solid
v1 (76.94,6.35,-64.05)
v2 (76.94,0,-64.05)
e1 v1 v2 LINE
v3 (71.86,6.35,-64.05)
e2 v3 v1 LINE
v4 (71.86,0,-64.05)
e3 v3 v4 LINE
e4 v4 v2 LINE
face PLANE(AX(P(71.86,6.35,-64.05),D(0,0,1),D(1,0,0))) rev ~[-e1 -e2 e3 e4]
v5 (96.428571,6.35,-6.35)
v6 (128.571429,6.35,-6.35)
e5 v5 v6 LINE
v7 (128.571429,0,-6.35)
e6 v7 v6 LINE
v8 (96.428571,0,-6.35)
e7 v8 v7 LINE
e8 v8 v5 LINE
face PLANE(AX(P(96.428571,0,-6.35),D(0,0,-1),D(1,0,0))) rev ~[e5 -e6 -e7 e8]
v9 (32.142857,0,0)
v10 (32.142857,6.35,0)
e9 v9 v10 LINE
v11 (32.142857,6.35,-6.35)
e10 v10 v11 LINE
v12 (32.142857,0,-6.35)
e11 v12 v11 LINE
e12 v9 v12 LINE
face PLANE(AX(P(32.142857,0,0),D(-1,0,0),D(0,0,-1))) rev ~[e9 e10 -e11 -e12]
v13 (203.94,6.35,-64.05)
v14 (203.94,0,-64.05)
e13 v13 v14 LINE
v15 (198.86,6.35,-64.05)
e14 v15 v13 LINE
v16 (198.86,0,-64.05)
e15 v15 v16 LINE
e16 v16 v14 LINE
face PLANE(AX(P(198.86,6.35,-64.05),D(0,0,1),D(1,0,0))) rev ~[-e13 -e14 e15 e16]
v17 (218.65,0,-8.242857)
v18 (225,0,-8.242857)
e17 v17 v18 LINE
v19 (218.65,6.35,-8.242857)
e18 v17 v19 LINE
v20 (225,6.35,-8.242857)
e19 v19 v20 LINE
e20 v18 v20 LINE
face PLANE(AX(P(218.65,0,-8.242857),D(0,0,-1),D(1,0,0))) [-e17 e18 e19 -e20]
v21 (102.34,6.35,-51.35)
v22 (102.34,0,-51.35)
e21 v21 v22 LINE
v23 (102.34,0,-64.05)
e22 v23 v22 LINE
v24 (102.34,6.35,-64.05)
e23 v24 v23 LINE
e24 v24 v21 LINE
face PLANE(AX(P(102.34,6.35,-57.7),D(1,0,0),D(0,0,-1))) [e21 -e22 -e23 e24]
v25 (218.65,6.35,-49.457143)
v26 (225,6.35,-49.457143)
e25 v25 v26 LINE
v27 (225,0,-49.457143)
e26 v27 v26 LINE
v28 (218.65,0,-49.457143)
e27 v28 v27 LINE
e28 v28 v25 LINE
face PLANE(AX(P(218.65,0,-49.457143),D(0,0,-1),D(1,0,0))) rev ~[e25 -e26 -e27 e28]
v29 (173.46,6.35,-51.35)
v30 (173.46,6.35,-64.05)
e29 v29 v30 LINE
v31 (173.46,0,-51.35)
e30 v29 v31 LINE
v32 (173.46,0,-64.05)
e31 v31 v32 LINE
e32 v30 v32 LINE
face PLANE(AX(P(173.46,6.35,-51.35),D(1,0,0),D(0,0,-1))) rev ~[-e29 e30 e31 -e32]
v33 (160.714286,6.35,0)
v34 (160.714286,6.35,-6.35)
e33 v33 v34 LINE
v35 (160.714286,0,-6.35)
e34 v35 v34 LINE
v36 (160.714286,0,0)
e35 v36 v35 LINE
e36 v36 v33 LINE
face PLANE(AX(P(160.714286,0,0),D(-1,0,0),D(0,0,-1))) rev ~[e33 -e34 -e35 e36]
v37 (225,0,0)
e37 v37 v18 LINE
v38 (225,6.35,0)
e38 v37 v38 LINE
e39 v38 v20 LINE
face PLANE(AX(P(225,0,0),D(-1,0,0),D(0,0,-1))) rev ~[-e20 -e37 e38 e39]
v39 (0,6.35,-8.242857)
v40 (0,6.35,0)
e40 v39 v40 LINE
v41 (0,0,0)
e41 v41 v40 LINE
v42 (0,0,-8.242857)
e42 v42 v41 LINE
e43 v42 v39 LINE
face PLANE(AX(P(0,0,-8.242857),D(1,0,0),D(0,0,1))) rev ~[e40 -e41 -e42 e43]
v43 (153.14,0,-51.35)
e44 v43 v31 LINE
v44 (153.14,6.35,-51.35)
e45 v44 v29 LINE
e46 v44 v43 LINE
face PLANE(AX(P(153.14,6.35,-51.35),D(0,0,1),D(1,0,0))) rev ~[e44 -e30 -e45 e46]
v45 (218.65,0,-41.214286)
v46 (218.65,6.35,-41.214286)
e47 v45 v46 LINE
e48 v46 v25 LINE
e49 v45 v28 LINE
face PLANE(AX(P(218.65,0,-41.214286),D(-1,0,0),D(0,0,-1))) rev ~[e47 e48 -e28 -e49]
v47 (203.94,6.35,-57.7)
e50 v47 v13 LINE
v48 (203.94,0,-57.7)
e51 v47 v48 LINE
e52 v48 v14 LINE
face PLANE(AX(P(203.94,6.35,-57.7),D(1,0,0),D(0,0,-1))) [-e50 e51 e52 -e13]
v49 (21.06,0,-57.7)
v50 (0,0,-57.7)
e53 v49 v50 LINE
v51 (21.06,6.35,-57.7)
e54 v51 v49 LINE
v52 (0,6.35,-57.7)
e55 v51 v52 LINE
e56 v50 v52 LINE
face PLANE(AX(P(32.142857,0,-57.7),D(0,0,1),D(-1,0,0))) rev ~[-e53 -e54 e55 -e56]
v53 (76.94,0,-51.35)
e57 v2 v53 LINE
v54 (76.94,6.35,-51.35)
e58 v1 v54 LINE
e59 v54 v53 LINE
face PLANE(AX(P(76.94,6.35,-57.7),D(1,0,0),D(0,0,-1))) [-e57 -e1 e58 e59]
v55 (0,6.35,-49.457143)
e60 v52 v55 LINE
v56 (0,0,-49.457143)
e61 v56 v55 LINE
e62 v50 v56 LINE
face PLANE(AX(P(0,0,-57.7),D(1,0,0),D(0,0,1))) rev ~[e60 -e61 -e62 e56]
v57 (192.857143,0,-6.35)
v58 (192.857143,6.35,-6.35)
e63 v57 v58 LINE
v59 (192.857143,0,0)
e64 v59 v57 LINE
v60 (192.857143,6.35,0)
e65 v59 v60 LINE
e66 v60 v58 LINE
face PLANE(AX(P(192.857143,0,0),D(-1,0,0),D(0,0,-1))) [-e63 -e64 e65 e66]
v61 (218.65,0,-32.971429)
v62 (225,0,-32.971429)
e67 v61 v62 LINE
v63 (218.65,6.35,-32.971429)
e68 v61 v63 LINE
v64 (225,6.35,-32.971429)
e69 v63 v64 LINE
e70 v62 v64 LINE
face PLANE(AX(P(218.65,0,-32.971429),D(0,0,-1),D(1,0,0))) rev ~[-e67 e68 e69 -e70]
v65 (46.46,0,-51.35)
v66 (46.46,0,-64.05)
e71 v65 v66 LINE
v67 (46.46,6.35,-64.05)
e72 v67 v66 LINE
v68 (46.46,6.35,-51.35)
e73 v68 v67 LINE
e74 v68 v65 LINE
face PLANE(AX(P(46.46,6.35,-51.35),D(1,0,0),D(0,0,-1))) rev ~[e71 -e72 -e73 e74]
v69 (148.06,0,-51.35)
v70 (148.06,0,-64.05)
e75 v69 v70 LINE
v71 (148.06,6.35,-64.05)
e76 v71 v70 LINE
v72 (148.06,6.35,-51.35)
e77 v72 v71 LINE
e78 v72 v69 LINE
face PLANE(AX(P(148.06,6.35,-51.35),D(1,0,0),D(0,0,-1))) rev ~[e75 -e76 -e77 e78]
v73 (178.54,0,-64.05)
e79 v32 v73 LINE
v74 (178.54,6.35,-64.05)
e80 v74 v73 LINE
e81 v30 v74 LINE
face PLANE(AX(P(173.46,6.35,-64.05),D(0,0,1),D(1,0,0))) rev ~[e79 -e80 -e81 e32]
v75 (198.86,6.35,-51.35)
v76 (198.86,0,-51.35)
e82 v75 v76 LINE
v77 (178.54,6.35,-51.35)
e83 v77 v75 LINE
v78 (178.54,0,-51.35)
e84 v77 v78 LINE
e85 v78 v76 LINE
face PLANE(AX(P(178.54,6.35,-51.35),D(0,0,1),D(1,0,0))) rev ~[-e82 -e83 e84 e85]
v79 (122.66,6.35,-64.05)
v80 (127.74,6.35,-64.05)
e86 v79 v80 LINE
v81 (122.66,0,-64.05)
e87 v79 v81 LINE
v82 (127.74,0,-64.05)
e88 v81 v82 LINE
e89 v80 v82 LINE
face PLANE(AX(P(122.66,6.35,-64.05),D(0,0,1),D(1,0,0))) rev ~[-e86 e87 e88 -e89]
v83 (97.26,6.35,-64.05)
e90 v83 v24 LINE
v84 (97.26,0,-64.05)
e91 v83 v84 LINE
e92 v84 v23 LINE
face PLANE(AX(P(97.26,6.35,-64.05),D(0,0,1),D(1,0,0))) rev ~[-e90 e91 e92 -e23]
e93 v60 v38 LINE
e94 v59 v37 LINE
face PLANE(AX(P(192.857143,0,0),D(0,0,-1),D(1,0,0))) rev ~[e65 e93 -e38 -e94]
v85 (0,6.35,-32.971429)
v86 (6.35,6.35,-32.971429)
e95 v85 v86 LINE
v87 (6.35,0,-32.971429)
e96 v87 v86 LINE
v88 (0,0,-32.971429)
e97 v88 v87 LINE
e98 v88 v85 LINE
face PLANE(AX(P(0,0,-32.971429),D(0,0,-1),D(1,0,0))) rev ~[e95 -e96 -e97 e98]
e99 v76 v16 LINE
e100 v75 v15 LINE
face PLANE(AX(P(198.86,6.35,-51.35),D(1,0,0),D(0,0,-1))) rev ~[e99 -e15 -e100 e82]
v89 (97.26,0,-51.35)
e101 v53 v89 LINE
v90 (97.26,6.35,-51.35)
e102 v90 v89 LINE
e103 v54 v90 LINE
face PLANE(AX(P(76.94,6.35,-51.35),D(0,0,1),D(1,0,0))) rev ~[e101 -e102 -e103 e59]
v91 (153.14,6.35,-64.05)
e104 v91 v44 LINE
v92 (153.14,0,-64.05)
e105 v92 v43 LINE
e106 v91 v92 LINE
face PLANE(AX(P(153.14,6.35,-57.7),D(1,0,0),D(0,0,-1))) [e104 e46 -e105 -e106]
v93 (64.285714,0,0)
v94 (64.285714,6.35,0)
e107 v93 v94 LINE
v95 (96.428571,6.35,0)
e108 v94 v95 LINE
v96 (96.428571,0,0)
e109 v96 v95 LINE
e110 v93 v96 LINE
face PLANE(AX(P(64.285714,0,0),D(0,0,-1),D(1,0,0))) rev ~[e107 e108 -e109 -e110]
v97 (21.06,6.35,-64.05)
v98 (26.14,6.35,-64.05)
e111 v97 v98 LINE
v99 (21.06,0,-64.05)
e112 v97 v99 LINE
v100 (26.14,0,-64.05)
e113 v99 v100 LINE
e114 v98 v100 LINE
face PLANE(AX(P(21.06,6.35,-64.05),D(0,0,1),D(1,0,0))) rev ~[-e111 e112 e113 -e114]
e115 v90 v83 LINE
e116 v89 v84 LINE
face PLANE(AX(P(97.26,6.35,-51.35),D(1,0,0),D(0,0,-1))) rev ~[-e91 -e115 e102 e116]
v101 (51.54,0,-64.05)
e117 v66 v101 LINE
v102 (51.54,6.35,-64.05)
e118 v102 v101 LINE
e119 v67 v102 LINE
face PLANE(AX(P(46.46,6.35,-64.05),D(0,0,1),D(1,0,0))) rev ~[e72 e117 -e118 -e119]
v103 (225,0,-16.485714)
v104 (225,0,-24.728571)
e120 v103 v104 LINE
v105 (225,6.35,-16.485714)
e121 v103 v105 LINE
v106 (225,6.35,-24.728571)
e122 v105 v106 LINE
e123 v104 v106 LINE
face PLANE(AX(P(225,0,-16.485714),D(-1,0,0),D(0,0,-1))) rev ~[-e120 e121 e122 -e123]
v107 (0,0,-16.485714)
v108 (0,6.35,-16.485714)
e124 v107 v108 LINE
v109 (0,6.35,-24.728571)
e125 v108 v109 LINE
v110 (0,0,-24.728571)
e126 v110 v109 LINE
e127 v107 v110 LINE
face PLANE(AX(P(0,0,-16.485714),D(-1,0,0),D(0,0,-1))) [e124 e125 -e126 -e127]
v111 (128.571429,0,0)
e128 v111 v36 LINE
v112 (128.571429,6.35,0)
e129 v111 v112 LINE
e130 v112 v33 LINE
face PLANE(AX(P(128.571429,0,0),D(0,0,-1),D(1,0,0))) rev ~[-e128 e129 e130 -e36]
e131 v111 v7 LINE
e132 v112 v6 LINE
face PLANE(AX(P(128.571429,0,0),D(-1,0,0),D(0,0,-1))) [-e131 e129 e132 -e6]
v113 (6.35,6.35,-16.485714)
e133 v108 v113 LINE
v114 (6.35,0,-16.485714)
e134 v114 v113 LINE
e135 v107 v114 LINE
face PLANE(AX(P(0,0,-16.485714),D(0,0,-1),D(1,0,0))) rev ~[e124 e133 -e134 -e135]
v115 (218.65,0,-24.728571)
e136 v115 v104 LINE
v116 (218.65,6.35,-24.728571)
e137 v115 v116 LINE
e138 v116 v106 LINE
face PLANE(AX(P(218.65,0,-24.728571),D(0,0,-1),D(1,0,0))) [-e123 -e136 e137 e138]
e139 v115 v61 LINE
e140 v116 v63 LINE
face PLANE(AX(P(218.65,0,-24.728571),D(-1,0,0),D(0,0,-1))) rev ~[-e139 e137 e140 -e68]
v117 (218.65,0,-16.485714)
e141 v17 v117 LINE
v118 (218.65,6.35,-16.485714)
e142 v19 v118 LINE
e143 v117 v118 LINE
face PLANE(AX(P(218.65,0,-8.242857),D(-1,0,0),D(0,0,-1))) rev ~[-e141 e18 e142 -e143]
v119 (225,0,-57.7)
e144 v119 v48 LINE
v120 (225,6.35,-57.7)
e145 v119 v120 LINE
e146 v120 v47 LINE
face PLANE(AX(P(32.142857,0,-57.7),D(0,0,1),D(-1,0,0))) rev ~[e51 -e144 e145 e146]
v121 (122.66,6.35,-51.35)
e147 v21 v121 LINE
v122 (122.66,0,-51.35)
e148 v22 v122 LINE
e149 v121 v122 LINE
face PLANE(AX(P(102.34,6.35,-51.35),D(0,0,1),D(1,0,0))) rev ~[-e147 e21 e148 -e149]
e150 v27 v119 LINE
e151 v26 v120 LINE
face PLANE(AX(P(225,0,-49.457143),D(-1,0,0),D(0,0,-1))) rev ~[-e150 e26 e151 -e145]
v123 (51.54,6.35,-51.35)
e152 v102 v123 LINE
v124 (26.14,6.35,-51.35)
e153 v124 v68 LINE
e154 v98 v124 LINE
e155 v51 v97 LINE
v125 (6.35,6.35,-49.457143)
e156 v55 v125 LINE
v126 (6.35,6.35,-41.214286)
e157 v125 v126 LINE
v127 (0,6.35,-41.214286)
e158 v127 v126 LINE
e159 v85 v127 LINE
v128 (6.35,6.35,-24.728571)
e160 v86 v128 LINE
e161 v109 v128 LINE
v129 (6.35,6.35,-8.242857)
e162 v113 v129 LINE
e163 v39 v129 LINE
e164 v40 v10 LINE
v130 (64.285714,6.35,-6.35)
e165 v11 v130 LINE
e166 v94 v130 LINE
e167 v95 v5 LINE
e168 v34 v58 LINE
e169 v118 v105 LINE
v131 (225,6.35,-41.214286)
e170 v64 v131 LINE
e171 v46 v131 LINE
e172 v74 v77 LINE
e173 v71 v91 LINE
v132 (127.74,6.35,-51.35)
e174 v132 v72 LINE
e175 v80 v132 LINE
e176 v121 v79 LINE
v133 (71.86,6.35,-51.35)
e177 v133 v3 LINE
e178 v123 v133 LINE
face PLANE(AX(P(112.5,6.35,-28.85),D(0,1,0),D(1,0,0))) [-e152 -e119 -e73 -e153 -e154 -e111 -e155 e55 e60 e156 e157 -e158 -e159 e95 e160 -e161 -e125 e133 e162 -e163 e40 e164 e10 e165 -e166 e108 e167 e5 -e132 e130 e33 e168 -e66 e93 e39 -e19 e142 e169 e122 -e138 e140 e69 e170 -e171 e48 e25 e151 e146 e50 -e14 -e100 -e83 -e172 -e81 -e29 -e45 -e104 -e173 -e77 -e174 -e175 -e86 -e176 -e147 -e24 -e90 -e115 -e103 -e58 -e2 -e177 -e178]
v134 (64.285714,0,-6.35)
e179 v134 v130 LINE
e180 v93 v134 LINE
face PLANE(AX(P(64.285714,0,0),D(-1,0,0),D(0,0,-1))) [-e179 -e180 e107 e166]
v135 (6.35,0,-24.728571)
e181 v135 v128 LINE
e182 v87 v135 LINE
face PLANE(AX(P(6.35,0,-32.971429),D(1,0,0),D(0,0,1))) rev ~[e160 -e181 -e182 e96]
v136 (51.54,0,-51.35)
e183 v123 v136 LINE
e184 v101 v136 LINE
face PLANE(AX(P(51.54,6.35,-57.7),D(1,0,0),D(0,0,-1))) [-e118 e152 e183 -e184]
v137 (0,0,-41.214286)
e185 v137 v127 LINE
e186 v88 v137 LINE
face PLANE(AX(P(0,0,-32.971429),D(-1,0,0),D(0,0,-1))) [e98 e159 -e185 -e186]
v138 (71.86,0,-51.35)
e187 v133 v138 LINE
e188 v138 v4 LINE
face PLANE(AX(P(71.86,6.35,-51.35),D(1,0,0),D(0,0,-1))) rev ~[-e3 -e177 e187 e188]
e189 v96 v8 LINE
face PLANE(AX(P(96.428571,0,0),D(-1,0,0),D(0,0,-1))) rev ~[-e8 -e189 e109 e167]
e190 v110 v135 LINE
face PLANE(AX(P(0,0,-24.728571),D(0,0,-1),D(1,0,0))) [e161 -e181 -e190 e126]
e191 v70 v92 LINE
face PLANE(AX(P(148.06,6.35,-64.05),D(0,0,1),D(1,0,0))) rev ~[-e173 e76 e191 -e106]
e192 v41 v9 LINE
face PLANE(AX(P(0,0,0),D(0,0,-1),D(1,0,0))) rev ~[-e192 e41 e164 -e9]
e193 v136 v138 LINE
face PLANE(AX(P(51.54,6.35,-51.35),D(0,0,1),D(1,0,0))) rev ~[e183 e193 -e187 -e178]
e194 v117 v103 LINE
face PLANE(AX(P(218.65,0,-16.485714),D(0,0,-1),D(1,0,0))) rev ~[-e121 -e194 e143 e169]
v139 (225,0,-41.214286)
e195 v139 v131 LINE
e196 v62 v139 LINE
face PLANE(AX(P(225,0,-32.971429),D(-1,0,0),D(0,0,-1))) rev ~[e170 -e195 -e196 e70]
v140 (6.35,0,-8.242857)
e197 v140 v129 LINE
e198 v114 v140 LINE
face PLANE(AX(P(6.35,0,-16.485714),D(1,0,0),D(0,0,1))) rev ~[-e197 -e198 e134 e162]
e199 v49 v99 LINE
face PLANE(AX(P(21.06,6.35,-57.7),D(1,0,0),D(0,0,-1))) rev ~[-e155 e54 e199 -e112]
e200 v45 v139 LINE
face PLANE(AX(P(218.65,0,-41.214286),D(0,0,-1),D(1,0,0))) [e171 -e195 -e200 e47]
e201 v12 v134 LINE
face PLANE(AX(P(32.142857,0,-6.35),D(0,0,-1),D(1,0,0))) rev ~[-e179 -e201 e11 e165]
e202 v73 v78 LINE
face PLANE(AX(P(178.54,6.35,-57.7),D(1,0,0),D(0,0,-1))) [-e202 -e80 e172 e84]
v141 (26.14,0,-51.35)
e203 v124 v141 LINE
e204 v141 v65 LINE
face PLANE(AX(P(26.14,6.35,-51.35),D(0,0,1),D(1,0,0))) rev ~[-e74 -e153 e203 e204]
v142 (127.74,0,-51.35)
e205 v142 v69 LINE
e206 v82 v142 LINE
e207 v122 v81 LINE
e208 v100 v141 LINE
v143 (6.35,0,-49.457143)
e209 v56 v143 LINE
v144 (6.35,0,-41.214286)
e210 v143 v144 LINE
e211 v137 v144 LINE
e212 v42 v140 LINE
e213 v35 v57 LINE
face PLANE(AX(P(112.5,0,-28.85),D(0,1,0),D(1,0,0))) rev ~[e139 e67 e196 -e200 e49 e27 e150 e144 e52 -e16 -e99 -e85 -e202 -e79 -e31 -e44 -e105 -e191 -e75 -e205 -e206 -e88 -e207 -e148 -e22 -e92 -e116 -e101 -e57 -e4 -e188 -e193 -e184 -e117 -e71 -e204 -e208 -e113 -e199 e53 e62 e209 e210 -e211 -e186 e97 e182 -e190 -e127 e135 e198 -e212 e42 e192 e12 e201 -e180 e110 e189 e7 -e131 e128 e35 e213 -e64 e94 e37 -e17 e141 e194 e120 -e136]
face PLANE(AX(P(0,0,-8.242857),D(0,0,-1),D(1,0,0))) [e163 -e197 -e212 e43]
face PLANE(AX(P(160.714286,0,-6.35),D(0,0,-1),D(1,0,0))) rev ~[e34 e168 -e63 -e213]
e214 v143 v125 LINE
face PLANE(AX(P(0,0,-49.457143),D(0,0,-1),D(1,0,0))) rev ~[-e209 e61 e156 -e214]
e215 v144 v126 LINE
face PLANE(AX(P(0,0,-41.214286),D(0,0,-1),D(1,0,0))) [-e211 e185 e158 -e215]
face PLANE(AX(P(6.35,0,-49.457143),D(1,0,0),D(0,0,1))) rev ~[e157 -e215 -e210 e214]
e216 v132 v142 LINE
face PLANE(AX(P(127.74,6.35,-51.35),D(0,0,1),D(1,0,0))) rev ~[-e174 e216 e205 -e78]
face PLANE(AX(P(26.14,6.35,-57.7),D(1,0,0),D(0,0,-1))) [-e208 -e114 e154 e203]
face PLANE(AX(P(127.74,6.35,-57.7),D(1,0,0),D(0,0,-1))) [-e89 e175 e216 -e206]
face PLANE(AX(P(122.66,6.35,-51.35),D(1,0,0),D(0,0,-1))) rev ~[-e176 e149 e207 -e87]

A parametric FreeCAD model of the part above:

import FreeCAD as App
import Part
import Sketcher
from FreeCAD import Vector
Q = App.Units.Quantity

doc = App.newDocument("Part")
body = doc.addObject("PartDesign::Body", "Body")

sketch1 = doc.addObject("Sketcher::SketchObject", "Sketch")
body.addObject(sketch1)
sketch1.AttachmentSupport = (doc.XZ_Plane, [""])
sketch1.MapMode = "FlatFace"
sketch1.addGeometry([
    Part.LineSegment(Vector(32, -6, 0), Vector(64, -6, 0)),
    Part.LineSegment(Vector(64, -6, 0), Vector(64, 0, 0)),
    Part.LineSegment(Vector(64, 0, 0), Vector(96, 0, 0)),
    Part.LineSegment(Vector(96, 0, 0), Vector(96, -6, 0)),
    Part.LineSegment(Vector(96, -6, 0), Vector(129, -6, 0)),
    Part.LineSegment(Vector(129, -6, 0), Vector(129, 0, 0)),
    Part.LineSegment(Vector(129, 0, 0), Vector(161, 0, 0)),
    Part.LineSegment(Vector(161, 0, 0), Vector(161, -6, 0)),
    Part.LineSegment(Vector(161, -6, 0), Vector(193, -6, 0)),
    Part.LineSegment(Vector(193, -6, 0), Vector(193, 0, 0)),
    Part.LineSegment(Vector(193, 0, 0), Vector(225, 0, 0)),
    Part.LineSegment(Vector(225, 0, 0), Vector(225, -8, 0)),
    Part.LineSegment(Vector(225, -8, 0), Vector(219, -8, 0)),
    Part.LineSegment(Vector(219, -8, 0), Vector(219, -16, 0)),
    Part.LineSegment(Vector(219, -16, 0), Vector(225, -16, 0)),
    Part.LineSegment(Vector(225, -16, 0), Vector(225, -25, 0)),
    Part.LineSegment(Vector(225, -25, 0), Vector(219, -25, 0)),
    Part.LineSegment(Vector(219, -25, 0), Vector(219, -33, 0)),
    Part.LineSegment(Vector(219, -33, 0), Vector(225, -33, 0)),
    Part.LineSegment(Vector(225, -33, 0), Vector(225, -41, 0)),
    Part.LineSegment(Vector(225, -41, 0), Vector(219, -41, 0)),
    Part.LineSegment(Vector(219, -41, 0), Vector(219, -49, 0)),
    Part.LineSegment(Vector(219, -49, 0), Vector(225, -49, 0)),
    Part.LineSegment(Vector(225, -49, 0), Vector(225, -58, 0)),
    Part.LineSegment(Vector(225, -58, 0), Vector(193, -58, 0)),
    Part.LineSegment(Vector(193, -58, 0), Vector(193, -51, 0)),
    Part.LineSegment(Vector(193, -51, 0), Vector(161, -51, 0)),
    Part.LineSegment(Vector(161, -51, 0), Vector(161, -58, 0)),
    Part.LineSegment(Vector(161, -58, 0), Vector(129, -58, 0)),
    Part.LineSegment(Vector(129, -58, 0), Vector(129, -51, 0)),
    Part.LineSegment(Vector(129, -51, 0), Vector(96, -51, 0)),
    Part.LineSegment(Vector(96, -51, 0), Vector(96, -58, 0)),
    Part.LineSegment(Vector(96, -58, 0), Vector(64, -58, 0)),
    Part.LineSegment(Vector(64, -58, 0), Vector(64, -51, 0)),
    Part.LineSegment(Vector(64, -51, 0), Vector(32, -51, 0)),
    Part.LineSegment(Vector(32, -51, 0), Vector(32, -58, 0)),
    Part.LineSegment(Vector(32, -58, 0), Vector(0, -58, 0)),
    Part.LineSegment(Vector(0, -58, 0), Vector(0, -49, 0)),
    Part.LineSegment(Vector(0, -49, 0), Vector(6, -49, 0)),
    Part.LineSegment(Vector(6, -49, 0), Vector(6, -41, 0)),
    Part.LineSegment(Vector(6, -41, 0), Vector(0, -41, 0)),
    Part.LineSegment(Vector(0, -41, 0), Vector(0, -33, 0)),
    Part.LineSegment(Vector(0, -33, 0), Vector(6, -33, 0)),
    Part.LineSegment(Vector(6, -33, 0), Vector(6, -25, 0)),
    Part.LineSegment(Vector(6, -25, 0), Vector(0, -25, 0)),
    Part.LineSegment(Vector(0, -25, 0), Vector(0, -16, 0)),
    Part.LineSegment(Vector(0, -16, 0), Vector(6, -16, 0)),
    Part.LineSegment(Vector(6, -16, 0), Vector(6, -8, 0)),
    Part.LineSegment(Vector(6, -8, 0), Vector(0, -8, 0)),
    Part.LineSegment(Vector(0, -8, 0), Vector(0, 0, 0)),
    Part.LineSegment(Vector(0, 0, 0), Vector(32, 0, 0)),
    Part.LineSegment(Vector(32, 0, 0), Vector(32, -6, 0)),
], False)
sketch1.addConstraint([
    Sketcher.Constraint("Coincident", 0, 2, 1, 1),
    Sketcher.Constraint("Coincident", 1, 2, 2, 1),
    Sketcher.Constraint("Coincident", 2, 2, 3, 1),
    Sketcher.Constraint("Coincident", 3, 2, 4, 1),
    Sketcher.Constraint("Coincident", 4, 2, 5, 1),
    Sketcher.Constraint("Coincident", 5, 2, 6, 1),
    Sketcher.Constraint("Coincident", 6, 2, 7, 1),
    Sketcher.Constraint("Coincident", 7, 2, 8, 1),
    Sketcher.Constraint("Coincident", 8, 2, 9, 1),
    Sketcher.Constraint("Coincident", 9, 2, 10, 1),
    Sketcher.Constraint("Coincident", 10, 2, 11, 1),
    Sketcher.Constraint("Coincident", 11, 2, 12, 1),
    Sketcher.Constraint("Coincident", 12, 2, 13, 1),
    Sketcher.Constraint("Coincident", 13, 2, 14, 1),
    Sketcher.Constraint("Coincident", 14, 2, 15, 1),
    Sketcher.Constraint("Coincident", 15, 2, 16, 1),
    Sketcher.Constraint("Coincident", 16, 2, 17, 1),
    Sketcher.Constraint("Coincident", 17, 2, 18, 1),
    Sketcher.Constraint("Coincident", 18, 2, 19, 1),
    Sketcher.Constraint("Coincident", 19, 2, 20, 1),
    Sketcher.Constraint("Coincident", 20, 2, 21, 1),
    Sketcher.Constraint("Coincident", 21, 2, 22, 1),
    Sketcher.Constraint("Coincident", 22, 2, 23, 1),
    Sketcher.Constraint("Coincident", 23, 2, 24, 1),
    Sketcher.Constraint("Coincident", 24, 2, 25, 1),
    Sketcher.Constraint("Coincident", 25, 2, 26, 1),
    Sketcher.Constraint("Coincident", 26, 2, 27, 1),
    Sketcher.Constraint("Coincident", 27, 2, 28, 1),
    Sketcher.Constraint("Coincident", 28, 2, 29, 1),
    Sketcher.Constraint("Coincident", 29, 2, 30, 1),
    Sketcher.Constraint("Coincident", 30, 2, 31, 1),
    Sketcher.Constraint("Coincident", 31, 2, 32, 1),
    Sketcher.Constraint("Coincident", 32, 2, 33, 1),
    Sketcher.Constraint("Coincident", 33, 2, 34, 1),
    Sketcher.Constraint("Coincident", 34, 2, 35, 1),
    Sketcher.Constraint("Coincident", 35, 2, 36, 1),
    Sketcher.Constraint("Coincident", 36, 2, 37, 1),
    Sketcher.Constraint("Coincident", 37, 2, 38, 1),
    Sketcher.Constraint("Coincident", 38, 2, 39, 1),
    Sketcher.Constraint("Coincident", 39, 2, 40, 1),
    Sketcher.Constraint("Coincident", 40, 2, 41, 1),
    Sketcher.Constraint("Coincident", 41, 2, 42, 1),
    Sketcher.Constraint("Coincident", 42, 2, 43, 1),
    Sketcher.Constraint("Coincident", 43, 2, 44, 1),
    Sketcher.Constraint("Coincident", 44, 2, 45, 1),
    Sketcher.Constraint("Coincident", 45, 2, 46, 1),
    Sketcher.Constraint("Coincident", 46, 2, 47, 1),
    Sketcher.Constraint("Coincident", 47, 2, 48, 1),
    Sketcher.Constraint("Coincident", 48, 2, 49, 1),
    Sketcher.Constraint("Coincident", 49, 2, 50, 1),
    Sketcher.Constraint("Coincident", 50, 2, 51, 1),
    Sketcher.Constraint("Coincident", 51, 2, 0, 1),
    Sketcher.Constraint("Horizontal", 0),
    Sketcher.Constraint("Vertical", 1),
    Sketcher.Constraint("Horizontal", 2),
    Sketcher.Constraint("Vertical", 3),
    Sketcher.Constraint("Horizontal", 4),
    Sketcher.Constraint("Vertical", 5),
    Sketcher.Constraint("Horizontal", 6),
    Sketcher.Constraint("Vertical", 7),
    Sketcher.Constraint("Horizontal", 8),
    Sketcher.Constraint("Vertical", 9),
    Sketcher.Constraint("Horizontal", 10),
    Sketcher.Constraint("Vertical", 11),
    Sketcher.Constraint("Horizontal", 12),
    Sketcher.Constraint("Vertical", 13),
    Sketcher.Constraint("Horizontal", 14),
    Sketcher.Constraint("Vertical", 15),
    Sketcher.Constraint("Horizontal", 16),
    Sketcher.Constraint("Vertical", 17),
    Sketcher.Constraint("Horizontal", 18),
    Sketcher.Constraint("Vertical", 19),
    Sketcher.Constraint("Horizontal", 20),
    Sketcher.Constraint("Vertical", 21),
    Sketcher.Constraint("Horizontal", 22),
    Sketcher.Constraint("Vertical", 23),
    Sketcher.Constraint("Horizontal", 24),
    Sketcher.Constraint("Vertical", 25),
    Sketcher.Constraint("Horizontal", 26),
    Sketcher.Constraint("Vertical", 27),
    Sketcher.Constraint("Horizontal", 28),
    Sketcher.Constraint("Vertical", 29),
    Sketcher.Constraint("Horizontal", 30),
    Sketcher.Constraint("Vertical", 31),
    Sketcher.Constraint("Horizontal", 32),
    Sketcher.Constraint("Vertical", 33),
    Sketcher.Constraint("Horizontal", 34),
    Sketcher.Constraint("Vertical", 35),
    Sketcher.Constraint("Horizontal", 36),
    Sketcher.Constraint("Vertical", 37),
    Sketcher.Constraint("Horizontal", 38),
    Sketcher.Constraint("Vertical", 39),
    Sketcher.Constraint("Horizontal", 40),
    Sketcher.Constraint("Vertical", 41),
    Sketcher.Constraint("Horizontal", 42),
    Sketcher.Constraint("Vertical", 43),
    Sketcher.Constraint("Horizontal", 44),
    Sketcher.Constraint("Vertical", 45),
    Sketcher.Constraint("Horizontal", 46),
    Sketcher.Constraint("Vertical", 47),
    Sketcher.Constraint("Horizontal", 48),
    Sketcher.Constraint("Vertical", 49),
    Sketcher.Constraint("Horizontal", 50),
    Sketcher.Constraint("Vertical", 51),
    Sketcher.Constraint("Coincident", 49, 2, -1, 1),
    Sketcher.Constraint("PointOnObject", 1, 2, -1),
    Sketcher.Constraint("PointOnObject", 5, 2, -1),
    Sketcher.Constraint("PointOnObject", 9, 2, -1),
    Sketcher.Constraint("PointOnObject", 36, 2, -2),
    Sketcher.Constraint("PointOnObject", 40, 2, -2),
    Sketcher.Constraint("PointOnObject", 44, 2, -2),
    Sketcher.Constraint("Horizontal", 0, 2, 3, 2),
    Sketcher.Constraint("Horizontal", 4, 2, 7, 2),
    Sketcher.Constraint("Horizontal", 24, 2, 27, 2),
    Sketcher.Constraint("Horizontal", 26, 2, 29, 2),
    Sketcher.Constraint("Horizontal", 28, 2, 31, 2),
    Sketcher.Constraint("Horizontal", 30, 2, 33, 2),
    Sketcher.Constraint("Horizontal", 32, 2, 35, 2),
    Sketcher.Constraint("Horizontal", 22, 2, 37, 2),
    Sketcher.Constraint("Horizontal", 20, 2, 39, 2),
    Sketcher.Constraint("Horizontal", 18, 2, 41, 2),
    Sketcher.Constraint("Horizontal", 16, 2, 43, 2),
    Sketcher.Constraint("Horizontal", 14, 2, 45, 2),
    Sketcher.Constraint("Horizontal", 12, 2, 47, 2),
    Sketcher.Constraint("Vertical", 11, 2, 14, 2),
    Sketcher.Constraint("Vertical", 13, 2, 16, 2),
    Sketcher.Constraint("Vertical", 15, 2, 18, 2),
    Sketcher.Constraint("Vertical", 17, 2, 20, 2),
    Sketcher.Constraint("Vertical", 19, 2, 22, 2),
    Sketcher.Constraint("Vertical", 9, 2, 24, 2),
    Sketcher.Constraint("Vertical", 7, 2, 26, 2),
    Sketcher.Constraint("Vertical", 5, 2, 28, 2),
    Sketcher.Constraint("Vertical", 3, 2, 30, 2),
    Sketcher.Constraint("Vertical", 1, 2, 32, 2),
    Sketcher.Constraint("Vertical", 39, 2, 42, 2),
    Sketcher.Constraint("Vertical", 43, 2, 46, 2),
    Sketcher.Constraint("Vertical", 35, 2, 50, 2),
    Sketcher.Constraint("Equal", 0, 2),
    Sketcher.Constraint("Equal", 2, 4),
    Sketcher.Constraint("Equal", 4, 6),
    Sketcher.Constraint("Equal", 6, 8),
    Sketcher.Constraint("Equal", 8, 10),
    Sketcher.Constraint("Equal", 34, 36),
    Sketcher.Constraint("Equal", 22, 38),
    Sketcher.Constraint("Equal", 48, 1),
    Sketcher.Constraint("Equal", 11, 13),
    Sketcher.Constraint("Equal", 13, 15),
    Sketcher.Constraint("Equal", 15, 17),
    Sketcher.Constraint("Equal", 17, 19),
    Sketcher.Constraint("Equal", 19, 21),
    Sketcher.Constraint("Equal", 21, 23),
    Sketcher.Constraint("Equal", 9, 25),
    Sketcher.Constraint("DistanceX", 12, 2, 12, 1, Q("0.25 in")),
    Sketcher.Constraint("DistanceX", -1, 1, 10, 2, Q("225 mm")),
    Sketcher.Constraint("DistanceY", 23, 2, -1, 1, Q("57.7 mm")),
])
pad1 = doc.addObject("PartDesign::Pad", "Pad")
body.addObject(pad1)
pad1.Profile = sketch1
pad1.Length = Q("0.25 in")
pad1.Reversed = True

sketch2 = doc.addObject("Sketcher::SketchObject", "Sketch001")
body.addObject(sketch2)
sketch2.AttachmentSupport = (doc.XZ_Plane, [""])
sketch2.MapMode = "FlatFace"
sketch2.AttachmentOffset = App.Placement(Vector(0, 0, -0.25 * 25.4), App.Rotation())
sketch2.addGeometry([
    Part.LineSegment(Vector(0, -58, 0), Vector(0, -49, 0)),
    Part.LineSegment(Vector(0, -49, 0), Vector(225, -49, 0)),
    Part.LineSegment(Vector(225, -49, 0), Vector(225, -58, 0)),
    Part.LineSegment(Vector(225, -58, 0), Vector(0, -58, 0)),
], False)
sketch2.addConstraint([
    Sketcher.Constraint("Coincident", 0, 2, 1, 1),
    Sketcher.Constraint("Coincident", 1, 2, 2, 1),
    Sketcher.Constraint("Coincident", 2, 2, 3, 1),
    Sketcher.Constraint("Coincident", 3, 2, 0, 1),
    Sketcher.Constraint("Vertical", 0),
    Sketcher.Constraint("Horizontal", 1),
    Sketcher.Constraint("Vertical", 2),
    Sketcher.Constraint("Horizontal", 3),
    Sketcher.Constraint("PointOnObject", 0, 2, -2),
    Sketcher.Constraint("DistanceX", 1, 1, 1, 2, Q("225 mm")),
    Sketcher.Constraint("DistanceY", 2, 2, -1, 1, Q("57.7 mm")),
    Sketcher.Constraint("DistanceY", 0, 1, 0, 2, Q("8.242857 mm")),
])
pad2 = doc.addObject("PartDesign::Pad", "Pad001")
body.addObject(pad2)
pad2.Profile = sketch2
pad2.Length = Q("0.25 in")

sketch3 = doc.addObject("Sketcher::SketchObject", "Sketch002")
body.addObject(sketch3)
sketch3.AttachmentSupport = (doc.XZ_Plane, [""])
sketch3.MapMode = "FlatFace"
sketch3.AttachmentOffset = App.Placement(Vector(0, 0, -0.25 * 25.4), App.Rotation())
sketch3.addGeometry([
    Part.LineSegment(Vector(21, -64, 0), Vector(21, -58, 0)),
    Part.LineSegment(Vector(21, -58, 0), Vector(26, -58, 0)),
    Part.LineSegment(Vector(26, -58, 0), Vector(26, -64, 0)),
    Part.LineSegment(Vector(26, -64, 0), Vector(21, -64, 0)),
    Part.LineSegment(Vector(46, -64, 0), Vector(46, -58, 0)),
    Part.LineSegment(Vector(46, -58, 0), Vector(52, -58, 0)),
    Part.LineSegment(Vector(52, -58, 0), Vector(52, -64, 0)),
    Part.LineSegment(Vector(52, -64, 0), Vector(46, -64, 0)),
    Part.LineSegment(Vector(72, -64, 0), Vector(72, -58, 0)),
    Part.LineSegment(Vector(72, -58, 0), Vector(77, -58, 0)),
    Part.LineSegment(Vector(77, -58, 0), Vector(77, -64, 0)),
    Part.LineSegment(Vector(77, -64, 0), Vector(72, -64, 0)),
    Part.LineSegment(Vector(97, -64, 0), Vector(97, -58, 0)),
    Part.LineSegment(Vector(97, -58, 0), Vector(102, -58, 0)),
    Part.LineSegment(Vector(102, -58, 0), Vector(102, -64, 0)),
    Part.LineSegment(Vector(102, -64, 0), Vector(97, -64, 0)),
    Part.LineSegment(Vector(123, -64, 0), Vector(123, -58, 0)),
    Part.LineSegment(Vector(123, -58, 0), Vector(128, -58, 0)),
    Part.LineSegment(Vector(128, -58, 0), Vector(128, -64, 0)),
    Part.LineSegment(Vector(128, -64, 0), Vector(123, -64, 0)),
    Part.LineSegment(Vector(148, -64, 0), Vector(148, -58, 0)),
    Part.LineSegment(Vector(148, -58, 0), Vector(153, -58, 0)),
    Part.LineSegment(Vector(153, -58, 0), Vector(153, -64, 0)),
    Part.LineSegment(Vector(153, -64, 0), Vector(148, -64, 0)),
    Part.LineSegment(Vector(173, -64, 0), Vector(173, -58, 0)),
    Part.LineSegment(Vector(173, -58, 0), Vector(179, -58, 0)),
    Part.LineSegment(Vector(179, -58, 0), Vector(179, -64, 0)),
    Part.LineSegment(Vector(179, -64, 0), Vector(173, -64, 0)),
    Part.LineSegment(Vector(199, -64, 0), Vector(199, -58, 0)),
    Part.LineSegment(Vector(199, -58, 0), Vector(204, -58, 0)),
    Part.LineSegment(Vector(204, -58, 0), Vector(204, -64, 0)),
    Part.LineSegment(Vector(204, -64, 0), Vector(199, -64, 0)),
], False)
sketch3.addConstraint([
    Sketcher.Constraint("Coincident", 0, 2, 1, 1),
    Sketcher.Constraint("Coincident", 1, 2, 2, 1),
    Sketcher.Constraint("Coincident", 2, 2, 3, 1),
    Sketcher.Constraint("Coincident", 3, 2, 0, 1),
    Sketcher.Constraint("Coincident", 4, 2, 5, 1),
    Sketcher.Constraint("Coincident", 5, 2, 6, 1),
    Sketcher.Constraint("Coincident", 6, 2, 7, 1),
    Sketcher.Constraint("Coincident", 7, 2, 4, 1),
    Sketcher.Constraint("Coincident", 8, 2, 9, 1),
    Sketcher.Constraint("Coincident", 9, 2, 10, 1),
    Sketcher.Constraint("Coincident", 10, 2, 11, 1),
    Sketcher.Constraint("Coincident", 11, 2, 8, 1),
    Sketcher.Constraint("Coincident", 12, 2, 13, 1),
    Sketcher.Constraint("Coincident", 13, 2, 14, 1),
    Sketcher.Constraint("Coincident", 14, 2, 15, 1),
    Sketcher.Constraint("Coincident", 15, 2, 12, 1),
    Sketcher.Constraint("Coincident", 16, 2, 17, 1),
    Sketcher.Constraint("Coincident", 17, 2, 18, 1),
    Sketcher.Constraint("Coincident", 18, 2, 19, 1),
    Sketcher.Constraint("Coincident", 19, 2, 16, 1),
    Sketcher.Constraint("Coincident", 20, 2, 21, 1),
    Sketcher.Constraint("Coincident", 21, 2, 22, 1),
    Sketcher.Constraint("Coincident", 22, 2, 23, 1),
    Sketcher.Constraint("Coincident", 23, 2, 20, 1),
    Sketcher.Constraint("Coincident", 24, 2, 25, 1),
    Sketcher.Constraint("Coincident", 25, 2, 26, 1),
    Sketcher.Constraint("Coincident", 26, 2, 27, 1),
    Sketcher.Constraint("Coincident", 27, 2, 24, 1),
    Sketcher.Constraint("Coincident", 28, 2, 29, 1),
    Sketcher.Constraint("Coincident", 29, 2, 30, 1),
    Sketcher.Constraint("Coincident", 30, 2, 31, 1),
    Sketcher.Constraint("Coincident", 31, 2, 28, 1),
    Sketcher.Constraint("Vertical", 0),
    Sketcher.Constraint("Horizontal", 1),
    Sketcher.Constraint("Vertical", 2),
    Sketcher.Constraint("Horizontal", 3),
    Sketcher.Constraint("Vertical", 4),
    Sketcher.Constraint("Horizontal", 5),
    Sketcher.Constraint("Vertical", 6),
    Sketcher.Constraint("Horizontal", 7),
    Sketcher.Constraint("Vertical", 8),
    Sketcher.Constraint("Horizontal", 9),
    Sketcher.Constraint("Vertical", 10),
    Sketcher.Constraint("Horizontal", 11),
    Sketcher.Constraint("Vertical", 12),
    Sketcher.Constraint("Horizontal", 13),
    Sketcher.Constraint("Vertical", 14),
    Sketcher.Constraint("Horizontal", 15),
    Sketcher.Constraint("Vertical", 16),
    Sketcher.Constraint("Horizontal", 17),
    Sketcher.Constraint("Vertical", 18),
    Sketcher.Constraint("Horizontal", 19),
    Sketcher.Constraint("Vertical", 20),
    Sketcher.Constraint("Horizontal", 21),
    Sketcher.Constraint("Vertical", 22),
    Sketcher.Constraint("Horizontal", 23),
    Sketcher.Constraint("Vertical", 24),
    Sketcher.Constraint("Horizontal", 25),
    Sketcher.Constraint("Vertical", 26),
    Sketcher.Constraint("Horizontal", 27),
    Sketcher.Constraint("Vertical", 28),
    Sketcher.Constraint("Horizontal", 29),
    Sketcher.Constraint("Vertical", 30),
    Sketcher.Constraint("Horizontal", 31),
    Sketcher.Constraint("Horizontal", 1, 2, 4, 2),
    Sketcher.Constraint("Horizontal", 3, 2, 6, 2),
    Sketcher.Constraint("Horizontal", 5, 2, 8, 2),
    Sketcher.Constraint("Horizontal", 7, 2, 10, 2),
    Sketcher.Constraint("Horizontal", 9, 2, 12, 2),
    Sketcher.Constraint("Horizontal", 11, 2, 14, 2),
    Sketcher.Constraint("Horizontal", 13, 2, 16, 2),
    Sketcher.Constraint("Horizontal", 15, 2, 18, 2),
    Sketcher.Constraint("Horizontal", 17, 2, 20, 2),
    Sketcher.Constraint("Horizontal", 19, 2, 22, 2),
    Sketcher.Constraint("Horizontal", 21, 2, 24, 2),
    Sketcher.Constraint("Horizontal", 23, 2, 26, 2),
    Sketcher.Constraint("Horizontal", 25, 2, 28, 2),
    Sketcher.Constraint("Horizontal", 27, 2, 30, 2),
    Sketcher.Constraint("Equal", 3, 5),
    Sketcher.Constraint("Equal", 7, 9),
    Sketcher.Constraint("Equal", 11, 13),
    Sketcher.Constraint("Equal", 15, 17),
    Sketcher.Constraint("Equal", 19, 21),
    Sketcher.Constraint("Equal", 23, 25),
    Sketcher.Constraint("Equal", 27, 29),
    Sketcher.Constraint("DistanceX", 1, 1, 1, 2, Q("0.2 in")),
    Sketcher.Constraint("DistanceX", 0, 2, 4, 2, Q("1 in")),
    Sketcher.Constraint("DistanceX", 4, 2, 8, 2, Q("1 in")),
    Sketcher.Constraint("DistanceX", 8, 2, 12, 2, Q("1 in")),
    Sketcher.Constraint("DistanceX", 12, 2, 16, 2, Q("1 in")),
    Sketcher.Constraint("DistanceX", 16, 2, 20, 2, Q("1 in")),
    Sketcher.Constraint("DistanceX", 20, 2, 24, 2, Q("1 in")),
    Sketcher.Constraint("DistanceX", 24, 2, 28, 2, Q("1 in")),
    Sketcher.Constraint("DistanceY", 0, 1, 0, 2, Q("0.25 in")),
    Sketcher.Constraint("DistanceX", -1, 1, 0, 2, Q("21.06 mm")),
    Sketcher.Constraint("DistanceY", 0, 2, -1, 1, Q("57.7 mm")),
])
pad3 = doc.addObject("PartDesign::Pad", "Pad002")
body.addObject(pad3)
pad3.Profile = sketch3
pad3.Length = Q("0.25 in")

sketch4 = doc.addObject("Sketcher::SketchObject", "Sketch003")
body.addObject(sketch4)
sketch4.AttachmentSupport = (doc.XZ_Plane, [""])
sketch4.MapMode = "FlatFace"
sketch4.AttachmentOffset = App.Placement(Vector(0, 0, -0.25 * 25.4), App.Rotation())
sketch4.addGeometry([
    Part.LineSegment(Vector(52, -58, 0), Vector(52, -51, 0)),
    Part.LineSegment(Vector(52, -51, 0), Vector(72, -51, 0)),
    Part.LineSegment(Vector(72, -51, 0), Vector(72, -58, 0)),
    Part.LineSegment(Vector(72, -58, 0), Vector(52, -58, 0)),
    Part.LineSegment(Vector(26, -58, 0), Vector(26, -51, 0)),
    Part.LineSegment(Vector(26, -51, 0), Vector(46, -51, 0)),
    Part.LineSegment(Vector(46, -51, 0), Vector(46, -58, 0)),
    Part.LineSegment(Vector(46, -58, 0), Vector(26, -58, 0)),
    Part.LineSegment(Vector(77, -58, 0), Vector(77, -51, 0)),
    Part.LineSegment(Vector(77, -51, 0), Vector(97, -51, 0)),
    Part.LineSegment(Vector(97, -51, 0), Vector(97, -58, 0)),
    Part.LineSegment(Vector(97, -58, 0), Vector(77, -58, 0)),
    Part.LineSegment(Vector(102, -58, 0), Vector(102, -51, 0)),
    Part.LineSegment(Vector(102, -51, 0), Vector(123, -51, 0)),
    Part.LineSegment(Vector(123, -51, 0), Vector(123, -58, 0)),
    Part.LineSegment(Vector(123, -58, 0), Vector(102, -58, 0)),
    Part.LineSegment(Vector(128, -58, 0), Vector(128, -51, 0)),
    Part.LineSegment(Vector(128, -51, 0), Vector(148, -51, 0)),
    Part.LineSegment(Vector(148, -51, 0), Vector(148, -58, 0)),
    Part.LineSegment(Vector(148, -58, 0), Vector(128, -58, 0)),
    Part.LineSegment(Vector(153, -58, 0), Vector(153, -51, 0)),
    Part.LineSegment(Vector(153, -51, 0), Vector(173, -51, 0)),
    Part.LineSegment(Vector(173, -51, 0), Vector(173, -58, 0)),
    Part.LineSegment(Vector(173, -58, 0), Vector(153, -58, 0)),
    Part.LineSegment(Vector(179, -58, 0), Vector(179, -51, 0)),
    Part.LineSegment(Vector(179, -51, 0), Vector(199, -51, 0)),
    Part.LineSegment(Vector(199, -51, 0), Vector(199, -58, 0)),
    Part.LineSegment(Vector(199, -58, 0), Vector(179, -58, 0)),
], False)
sketch4.addConstraint([
    Sketcher.Constraint("Coincident", 0, 2, 1, 1),
    Sketcher.Constraint("Coincident", 1, 2, 2, 1),
    Sketcher.Constraint("Coincident", 2, 2, 3, 1),
    Sketcher.Constraint("Coincident", 3, 2, 0, 1),
    Sketcher.Constraint("Coincident", 4, 2, 5, 1),
    Sketcher.Constraint("Coincident", 5, 2, 6, 1),
    Sketcher.Constraint("Coincident", 6, 2, 7, 1),
    Sketcher.Constraint("Coincident", 7, 2, 4, 1),
    Sketcher.Constraint("Coincident", 8, 2, 9, 1),
    Sketcher.Constraint("Coincident", 9, 2, 10, 1),
    Sketcher.Constraint("Coincident", 10, 2, 11, 1),
    Sketcher.Constraint("Coincident", 11, 2, 8, 1),
    Sketcher.Constraint("Coincident", 12, 2, 13, 1),
    Sketcher.Constraint("Coincident", 13, 2, 14, 1),
    Sketcher.Constraint("Coincident", 14, 2, 15, 1),
    Sketcher.Constraint("Coincident", 15, 2, 12, 1),
    Sketcher.Constraint("Coincident", 16, 2, 17, 1),
    Sketcher.Constraint("Coincident", 17, 2, 18, 1),
    Sketcher.Constraint("Coincident", 18, 2, 19, 1),
    Sketcher.Constraint("Coincident", 19, 2, 16, 1),
    Sketcher.Constraint("Coincident", 20, 2, 21, 1),
    Sketcher.Constraint("Coincident", 21, 2, 22, 1),
    Sketcher.Constraint("Coincident", 22, 2, 23, 1),
    Sketcher.Constraint("Coincident", 23, 2, 20, 1),
    Sketcher.Constraint("Coincident", 24, 2, 25, 1),
    Sketcher.Constraint("Coincident", 25, 2, 26, 1),
    Sketcher.Constraint("Coincident", 26, 2, 27, 1),
    Sketcher.Constraint("Coincident", 27, 2, 24, 1),
    Sketcher.Constraint("Vertical", 0),
    Sketcher.Constraint("Horizontal", 1),
    Sketcher.Constraint("Vertical", 2),
    Sketcher.Constraint("Horizontal", 3),
    Sketcher.Constraint("Vertical", 4),
    Sketcher.Constraint("Horizontal", 5),
    Sketcher.Constraint("Vertical", 6),
    Sketcher.Constraint("Horizontal", 7),
    Sketcher.Constraint("Vertical", 8),
    Sketcher.Constraint("Horizontal", 9),
    Sketcher.Constraint("Vertical", 10),
    Sketcher.Constraint("Horizontal", 11),
    Sketcher.Constraint("Vertical", 12),
    Sketcher.Constraint("Horizontal", 13),
    Sketcher.Constraint("Vertical", 14),
    Sketcher.Constraint("Horizontal", 15),
    Sketcher.Constraint("Vertical", 16),
    Sketcher.Constraint("Horizontal", 17),
    Sketcher.Constraint("Vertical", 18),
    Sketcher.Constraint("Horizontal", 19),
    Sketcher.Constraint("Vertical", 20),
    Sketcher.Constraint("Horizontal", 21),
    Sketcher.Constraint("Vertical", 22),
    Sketcher.Constraint("Horizontal", 23),
    Sketcher.Constraint("Vertical", 24),
    Sketcher.Constraint("Horizontal", 25),
    Sketcher.Constraint("Vertical", 26),
    Sketcher.Constraint("Horizontal", 27),
    Sketcher.Constraint("Horizontal", 1, 2, 4, 2),
    Sketcher.Constraint("Horizontal", 3, 2, 6, 2),
    Sketcher.Constraint("Horizontal", 5, 2, 8, 2),
    Sketcher.Constraint("Horizontal", 7, 2, 10, 2),
    Sketcher.Constraint("Horizontal", 9, 2, 12, 2),
    Sketcher.Constraint("Horizontal", 11, 2, 14, 2),
    Sketcher.Constraint("Horizontal", 13, 2, 16, 2),
    Sketcher.Constraint("Horizontal", 15, 2, 18, 2),
    Sketcher.Constraint("Horizontal", 17, 2, 20, 2),
    Sketcher.Constraint("Horizontal", 19, 2, 22, 2),
    Sketcher.Constraint("Horizontal", 21, 2, 24, 2),
    Sketcher.Constraint("Horizontal", 23, 2, 26, 2),
    Sketcher.Constraint("Equal", 3, 5),
    Sketcher.Constraint("Equal", 7, 9),
    Sketcher.Constraint("Equal", 11, 13),
    Sketcher.Constraint("Equal", 15, 17),
    Sketcher.Constraint("Equal", 19, 21),
    Sketcher.Constraint("Equal", 23, 25),
    Sketcher.Constraint("DistanceX", 1, 1, 1, 2, Q("0.8 in")),
    Sketcher.Constraint("DistanceX", 4, 2, 0, 2, Q("1 in")),
    Sketcher.Constraint("DistanceX", 0, 2, 8, 2, Q("1 in")),
    Sketcher.Constraint("DistanceX", 8, 2, 12, 2, Q("1 in")),
    Sketcher.Constraint("DistanceX", 12, 2, 16, 2, Q("1 in")),
    Sketcher.Constraint("DistanceX", 16, 2, 20, 2, Q("1 in")),
    Sketcher.Constraint("DistanceX", 20, 2, 24, 2, Q("1 in")),
    Sketcher.Constraint("DistanceY", 0, 1, 0, 2, Q("0.25 in")),
    Sketcher.Constraint("DistanceX", -1, 1, 0, 2, Q("51.54 mm")),
    Sketcher.Constraint("DistanceY", 0, 2, -1, 1, Q("51.35 mm")),
])
pocket1 = doc.addObject("PartDesign::Pocket", "Pocket")
body.addObject(pocket1)
pocket1.Profile = sketch4
pocket1.Length = Q("0.25 in")
pocket1.Reversed = True

doc.recompute()
